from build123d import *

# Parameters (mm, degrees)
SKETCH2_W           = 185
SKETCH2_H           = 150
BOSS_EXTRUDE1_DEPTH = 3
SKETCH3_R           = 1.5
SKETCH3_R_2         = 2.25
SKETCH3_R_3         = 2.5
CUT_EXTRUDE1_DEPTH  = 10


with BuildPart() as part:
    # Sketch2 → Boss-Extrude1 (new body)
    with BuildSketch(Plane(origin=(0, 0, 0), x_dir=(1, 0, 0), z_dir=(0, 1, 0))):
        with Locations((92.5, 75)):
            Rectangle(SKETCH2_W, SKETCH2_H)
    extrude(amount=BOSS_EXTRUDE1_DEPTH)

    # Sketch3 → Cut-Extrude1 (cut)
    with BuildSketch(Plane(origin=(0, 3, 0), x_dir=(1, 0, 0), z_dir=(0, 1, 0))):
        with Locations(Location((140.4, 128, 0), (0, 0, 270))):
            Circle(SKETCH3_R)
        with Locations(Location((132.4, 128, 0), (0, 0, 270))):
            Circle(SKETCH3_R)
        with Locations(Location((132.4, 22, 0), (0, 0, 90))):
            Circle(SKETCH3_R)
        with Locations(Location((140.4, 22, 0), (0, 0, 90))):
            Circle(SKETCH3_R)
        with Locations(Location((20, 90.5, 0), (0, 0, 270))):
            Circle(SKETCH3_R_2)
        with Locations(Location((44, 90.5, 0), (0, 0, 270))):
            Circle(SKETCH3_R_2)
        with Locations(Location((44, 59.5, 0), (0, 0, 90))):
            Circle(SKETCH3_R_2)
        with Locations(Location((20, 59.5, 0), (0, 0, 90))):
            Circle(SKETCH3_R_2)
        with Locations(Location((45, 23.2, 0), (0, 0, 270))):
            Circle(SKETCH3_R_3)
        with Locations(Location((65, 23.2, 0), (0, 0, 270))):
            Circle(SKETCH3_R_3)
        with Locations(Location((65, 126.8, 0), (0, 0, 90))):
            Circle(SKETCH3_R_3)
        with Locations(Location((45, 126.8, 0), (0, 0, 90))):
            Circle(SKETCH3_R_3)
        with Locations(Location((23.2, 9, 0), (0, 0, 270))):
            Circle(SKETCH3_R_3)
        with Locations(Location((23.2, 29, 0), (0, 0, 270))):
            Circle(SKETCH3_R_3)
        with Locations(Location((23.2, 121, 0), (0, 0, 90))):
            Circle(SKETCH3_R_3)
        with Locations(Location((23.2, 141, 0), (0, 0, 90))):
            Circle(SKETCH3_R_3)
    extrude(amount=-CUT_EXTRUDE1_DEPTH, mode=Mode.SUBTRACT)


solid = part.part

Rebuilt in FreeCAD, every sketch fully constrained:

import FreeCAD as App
import Part
import Sketcher

V = App.Vector
Q = App.Units.Quantity

doc = App.newDocument("Part")
body = doc.addObject("PartDesign::Body", "Body")

# Sketch on XZ plane
sketch1 = body.newObject("Sketcher::SketchObject", "Sketch")
sketch1.AttachmentSupport = (doc.getObject("XZ_Plane"), [""])
sketch1.MapMode = "FlatFace"
sketch1.addGeometry([
    Part.LineSegment(V(0, -150, 0), V(0, 0, 0)),
    Part.LineSegment(V(0, 0, 0), V(185, 0, 0)),
    Part.LineSegment(V(185, 0, 0), V(185, -150, 0)),
    Part.LineSegment(V(185, -150, 0), V(0, -150, 0)),
], False)
sketch1.addConstraint([
    Sketcher.Constraint("Coincident", 0, 2, 1, 1),
    Sketcher.Constraint("Coincident", 1, 2, 2, 1),
    Sketcher.Constraint("Coincident", 2, 2, 3, 1),
    Sketcher.Constraint("Coincident", 3, 2, 0, 1),
    Sketcher.Constraint("Vertical", 0),
    Sketcher.Constraint("Horizontal", 1),
    Sketcher.Constraint("Vertical", 2),
    Sketcher.Constraint("Horizontal", 3),
    Sketcher.Constraint("Coincident", 0, 2, -1, 1),
    Sketcher.Constraint("DistanceX", 1, 1, 1, 2, Q("185 mm")),
    Sketcher.Constraint("DistanceY", 0, 1, 0, 2, Q("150 mm")),
])
pad1 = body.newObject("PartDesign::Pad", "Pad")
pad1.Profile = sketch1
pad1.Length = 3
pad1.Reversed = True

# Sketch on XZ plane
sketch2 = body.newObject("Sketcher::SketchObject", "Sketch001")
sketch2.AttachmentSupport = (doc.getObject("XZ_Plane"), [""])
sketch2.MapMode = "FlatFace"
sketch2.AttachmentOffset = App.Placement(V(0, 0, -3), App.Rotation())
sketch2.addGeometry([
    Part.Circle(V(140.4, -128, 0), V(0, 0, 1), 1.5),  # 0
    Part.Circle(V(132.4, -128, 0), V(0, 0, 1), 1.5),  # 1
    Part.Circle(V(132.4, -22, 0), V(0, 0, 1), 1.5),  # 2
    Part.Circle(V(140.4, -22, 0), V(0, 0, 1), 1.5),  # 3
    Part.Circle(V(20, -90.5, 0), V(0, 0, 1), 2.2),  # 4
    Part.Circle(V(44, -90.5, 0), V(0, 0, 1), 2.2),  # 5
    Part.Circle(V(44, -59.5, 0), V(0, 0, 1), 2.2),  # 6
    Part.Circle(V(20, -59.5, 0), V(0, 0, 1), 2.2),  # 7
    Part.Circle(V(45, -23.2, 0), V(0, 0, 1), 2.5),  # 8
    Part.Circle(V(65, -23.2, 0), V(0, 0, 1), 2.5),  # 9
    Part.Circle(V(65, -126.8, 0), V(0, 0, 1), 2.5),  # 10
    Part.Circle(V(45, -126.8, 0), V(0, 0, 1), 2.5),  # 11
    Part.Circle(V(23.2, -9, 0), V(0, 0, 1), 2.5),  # 12
    Part.Circle(V(23.2, -29, 0), V(0, 0, 1), 2.5),  # 13
    Part.Circle(V(23.2, -121, 0), V(0, 0, 1), 2.5),  # 14
    Part.Circle(V(23.2, -141, 0), V(0, 0, 1), 2.5),  # 15
], False)
sketch2.addConstraint([
    Sketcher.Constraint("Equal", 0, 1),
    Sketcher.Constraint("Equal", 1, 2),
    Sketcher.Constraint("Equal", 2, 3),
    Sketcher.Constraint("Equal", 4, 5),
    Sketcher.Constraint("Equal", 5, 6),
    Sketcher.Constraint("Equal", 6, 7),
    Sketcher.Constraint("Equal", 8, 9),
    Sketcher.Constraint("Equal", 9, 10),
    Sketcher.Constraint("Equal", 10, 11),
    Sketcher.Constraint("Equal", 11, 12),
    Sketcher.Constraint("Equal", 12, 13),
    Sketcher.Constraint("Equal", 13, 14),
    Sketcher.Constraint("Equal", 14, 15),
    Sketcher.Constraint("Horizontal", 0, 3, 1, 3),
    Sketcher.Constraint("Horizontal", 2, 3, 3, 3),
    Sketcher.Constraint("Horizontal", 4, 3, 5, 3),
    Sketcher.Constraint("Horizontal", 6, 3, 7, 3),
    Sketcher.Constraint("Horizontal", 8, 3, 9, 3),
    Sketcher.Constraint("Horizontal", 10, 3, 11, 3),
    Sketcher.Constraint("Vertical", 1, 3, 2, 3),
    Sketcher.Constraint("Vertical", 0, 3, 3, 3),
    Sketcher.Constraint("Vertical", 5, 3, 6, 3),
    Sketcher.Constraint("Vertical", 4, 3, 7, 3),
    Sketcher.Constraint("Vertical", 9, 3, 10, 3),
    Sketcher.Constraint("Vertical", 8, 3, 11, 3),
    Sketcher.Constraint("Vertical", 12, 3, 13, 3),
    Sketcher.Constraint("Vertical", 13, 3, 14, 3),
    Sketcher.Constraint("Vertical", 14, 3, 15, 3),
    Sketcher.Constraint("Diameter", 0, Q("3 mm")),
    Sketcher.Constraint("Diameter", 8, Q("5 mm")),
    Sketcher.Constraint("Diameter", 4, Q("4.5 mm")),
    Sketcher.Constraint("DistanceY", 0, 3, -1, 1, Q("128 mm")),
    Sketcher.Constraint("DistanceY", 2, 3, -1, 1, Q("22 mm")),
    Sketcher.Constraint("DistanceX", -1, 1, 4, 3, Q("20 mm")),
    Sketcher.Constraint("DistanceX", -1, 1, 5, 3, Q("44 mm")),
    Sketcher.Constraint("DistanceX", -1, 1, 8, 3, Q("45 mm")),
    Sketcher.Constraint("DistanceX", -1, 1, 9, 3, Q("65 mm")),
    Sketcher.Constraint("DistanceY", 12, 3, -1, 1, Q("9 mm")),
    Sketcher.Constraint("DistanceY", 13, 3, -1, 1, Q("29 mm")),
    Sketcher.Constraint("DistanceY", 14, 3, -1, 1, Q("121 mm")),
    Sketcher.Constraint("DistanceY", 15, 3, -1, 1, Q("141 mm")),
    Sketcher.Constraint("DistanceX", 1, 3, 0, 3, Q("8 mm")),
    Sketcher.Constraint("DistanceY", 5, 3, 6, 3, Q("31 mm")),
    Sketcher.Constraint("DistanceX", -1, 1, 0, 3, Q("140.4 mm")),
    Sketcher.Constraint("DistanceY", 4, 3, -1, 1, Q("90.5 mm")),
    Sketcher.Constraint("DistanceY", 8, 3, -1, 1, Q("23.2 mm")),
    Sketcher.Constraint("DistanceY", 10, 3, -1, 1, Q("126.8 mm")),
    Sketcher.Constraint("DistanceX", -1, 1, 12, 3, Q("23.2 mm")),
])
pocket1 = body.newObject("PartDesign::Pocket", "Pocket")
pocket1.Profile = sketch2
pocket1.Length = 10
pocket1.Reversed = True

doc.recompute()
